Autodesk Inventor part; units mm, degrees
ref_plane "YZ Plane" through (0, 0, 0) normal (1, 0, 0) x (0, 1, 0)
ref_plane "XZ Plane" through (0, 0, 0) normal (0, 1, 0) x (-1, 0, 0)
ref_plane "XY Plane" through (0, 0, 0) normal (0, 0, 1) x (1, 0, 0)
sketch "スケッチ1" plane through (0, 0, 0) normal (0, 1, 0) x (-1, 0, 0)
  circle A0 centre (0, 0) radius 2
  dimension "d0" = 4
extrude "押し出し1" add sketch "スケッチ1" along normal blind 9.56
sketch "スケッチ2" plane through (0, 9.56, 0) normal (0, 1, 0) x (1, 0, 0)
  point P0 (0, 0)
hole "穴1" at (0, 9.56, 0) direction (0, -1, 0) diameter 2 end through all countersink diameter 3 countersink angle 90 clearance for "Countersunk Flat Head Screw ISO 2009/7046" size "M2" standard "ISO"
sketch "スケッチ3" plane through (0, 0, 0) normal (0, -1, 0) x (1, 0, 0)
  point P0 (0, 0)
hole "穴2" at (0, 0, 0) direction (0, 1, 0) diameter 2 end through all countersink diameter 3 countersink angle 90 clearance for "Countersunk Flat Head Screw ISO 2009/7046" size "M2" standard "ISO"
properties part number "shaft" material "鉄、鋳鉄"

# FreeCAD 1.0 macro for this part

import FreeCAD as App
import Part
import Sketcher
from FreeCAD import Vector
Q = App.Units.Quantity

doc = App.newDocument("Part")
body = doc.addObject("PartDesign::Body", "Body")

# Sketch on XZ plane
sketch1 = body.newObject("Sketcher::SketchObject", "Sketch")
sketch1.AttachmentSupport = (doc.getObject("XZ_Plane"), [""])
sketch1.MapMode = "FlatFace"
sketch1.addGeometry(Part.Circle(Vector(0, 0, 0), Vector(0, 0, 1), 2), False)
sketch1.addConstraint([
    Sketcher.Constraint("Coincident", 0, 3, -1, 1),
    Sketcher.Constraint("Diameter", 0, Q("4 mm")),
])
pad1 = body.newObject("PartDesign::Pad", "Pad")
pad1.Profile = sketch1
pad1.Length = 9.56
pad1.Reversed = True

# Sketch on XZ plane
sketch2 = body.newObject("Sketcher::SketchObject", "Sketch001")
sketch2.AttachmentSupport = (doc.getObject("XZ_Plane"), [""])
sketch2.MapMode = "FlatFace"
sketch2.AttachmentOffset = App.Placement(Vector(0, 0, -9.56), App.Rotation())
sketch2.addGeometry(Part.Circle(Vector(0, 0, 0), Vector(0, 0, 1), 1), False)
sketch2.addConstraint([
    Sketcher.Constraint("Coincident", 0, 3, -1, 1),
    Sketcher.Constraint("Diameter", 0, Q("2 mm")),
])
doc.recompute()
hole = body.newObject("PartDesign::Hole", "Hole")
hole.Profile = sketch2
hole.ThreadType = "None"
hole.Diameter = 2
hole.DepthType = "ThroughAll"
hole.HoleCutType = "Countersink"
hole.HoleCutDiameter = 3
hole.HoleCutCountersinkAngle = 90
hole.Reversed = True

# Sketch on XZ plane
sketch3 = body.newObject("Sketcher::SketchObject", "Sketch002")
sketch3.AttachmentSupport = (doc.getObject("XZ_Plane"), [""])
sketch3.MapMode = "FlatFace"
sketch3.addGeometry(Part.Circle(Vector(0, 0, 0), Vector(0, 0, 1), 1), False)
sketch3.addConstraint([
    Sketcher.Constraint("Coincident", 0, 3, -1, 1),
    Sketcher.Constraint("Diameter", 0, Q("2 mm")),
])
doc.recompute()
hole2 = body.newObject("PartDesign::Hole", "Hole001")
hole2.Profile = sketch3
hole2.ThreadType = "None"
hole2.Diameter = 2
hole2.DepthType = "ThroughAll"
hole2.HoleCutType = "Countersink"
hole2.HoleCutDiameter = 3
hole2.HoleCutCountersinkAngle = 90

doc.recompute()
